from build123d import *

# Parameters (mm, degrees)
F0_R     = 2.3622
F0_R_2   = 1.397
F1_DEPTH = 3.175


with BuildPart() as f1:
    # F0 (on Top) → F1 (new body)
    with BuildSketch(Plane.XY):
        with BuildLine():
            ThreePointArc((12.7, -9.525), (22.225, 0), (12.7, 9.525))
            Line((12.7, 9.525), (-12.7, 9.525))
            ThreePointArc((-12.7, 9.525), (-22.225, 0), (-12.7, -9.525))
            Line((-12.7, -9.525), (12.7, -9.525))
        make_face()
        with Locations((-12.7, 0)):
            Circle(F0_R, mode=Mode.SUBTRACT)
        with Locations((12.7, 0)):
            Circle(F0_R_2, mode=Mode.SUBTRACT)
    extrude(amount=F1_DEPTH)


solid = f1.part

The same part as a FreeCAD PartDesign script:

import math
import FreeCAD as App
import Part
import Sketcher

V = App.Vector
Q = App.Units.Quantity

doc = App.newDocument("Part")
body = doc.addObject("PartDesign::Body", "Body")

sketch1 = body.newObject("Sketcher::SketchObject", "Sketch")
sketch1.AttachmentSupport = (doc.getObject("XY_Plane"), [""])
sketch1.MapMode = "FlatFace"
sketch1.addGeometry(Part.ArcOfCircle(Part.Circle(V(12.7, 0, 0), V(0, 0, 1), 9.5), math.radians(-90), math.radians(90)), False)
sketch1.addGeometry(Part.LineSegment(V(12.7, 9.5, 0), V(-12.7, 9.5, 0)), False)
sketch1.addGeometry(Part.ArcOfCircle(Part.Circle(V(-12.7, 0, 0), V(0, 0, 1), 9.5), math.radians(90), math.radians(270)), False)
sketch1.addGeometry(Part.LineSegment(V(-12.7, -9.5, 0), V(12.7, -9.5, 0)), False)
sketch1.addGeometry(Part.Circle(V(-12.7, 0, 0), V(0, 0, 1), 2.4), False)
sketch1.addGeometry(Part.Circle(V(12.7, 0, 0), V(0, 0, 1), 1.4), False)
sketch1.addConstraint(Sketcher.Constraint("Tangent", 0, 2, 1, 1))
sketch1.addConstraint(Sketcher.Constraint("Tangent", 1, 2, 2, 1))
sketch1.addConstraint(Sketcher.Constraint("Tangent", 2, 2, 3, 1))
sketch1.addConstraint(Sketcher.Constraint("Tangent", 3, 2, 0, 1))
sketch1.addConstraint(Sketcher.Constraint("Horizontal", 1))
sketch1.addConstraint(Sketcher.Constraint("Horizontal", 3))
sketch1.addConstraint(Sketcher.Constraint("Coincident", 4, 3, 2, 3))
sketch1.addConstraint(Sketcher.Constraint("Coincident", 5, 3, 0, 3))
sketch1.addConstraint(Sketcher.Constraint("Symmetric", 0, 3, 2, 3, -1, 1))
sketch1.addConstraint(Sketcher.Constraint("Diameter", 5, Q("0.11 in")))
sketch1.addConstraint(Sketcher.Constraint("DistanceX", 1, 2, 1, 1, Q("1 in")))
sketch1.addConstraint(Sketcher.Constraint("Diameter", 4, Q("0.186 in")))
sketch1.addConstraint(Sketcher.Constraint("Radius", 0, Q("0.375 in")))
pad1 = body.newObject("PartDesign::Pad", "Pad")
pad1.Profile = sketch1
pad1.Length = Q("0.125 in")

doc.recompute()
